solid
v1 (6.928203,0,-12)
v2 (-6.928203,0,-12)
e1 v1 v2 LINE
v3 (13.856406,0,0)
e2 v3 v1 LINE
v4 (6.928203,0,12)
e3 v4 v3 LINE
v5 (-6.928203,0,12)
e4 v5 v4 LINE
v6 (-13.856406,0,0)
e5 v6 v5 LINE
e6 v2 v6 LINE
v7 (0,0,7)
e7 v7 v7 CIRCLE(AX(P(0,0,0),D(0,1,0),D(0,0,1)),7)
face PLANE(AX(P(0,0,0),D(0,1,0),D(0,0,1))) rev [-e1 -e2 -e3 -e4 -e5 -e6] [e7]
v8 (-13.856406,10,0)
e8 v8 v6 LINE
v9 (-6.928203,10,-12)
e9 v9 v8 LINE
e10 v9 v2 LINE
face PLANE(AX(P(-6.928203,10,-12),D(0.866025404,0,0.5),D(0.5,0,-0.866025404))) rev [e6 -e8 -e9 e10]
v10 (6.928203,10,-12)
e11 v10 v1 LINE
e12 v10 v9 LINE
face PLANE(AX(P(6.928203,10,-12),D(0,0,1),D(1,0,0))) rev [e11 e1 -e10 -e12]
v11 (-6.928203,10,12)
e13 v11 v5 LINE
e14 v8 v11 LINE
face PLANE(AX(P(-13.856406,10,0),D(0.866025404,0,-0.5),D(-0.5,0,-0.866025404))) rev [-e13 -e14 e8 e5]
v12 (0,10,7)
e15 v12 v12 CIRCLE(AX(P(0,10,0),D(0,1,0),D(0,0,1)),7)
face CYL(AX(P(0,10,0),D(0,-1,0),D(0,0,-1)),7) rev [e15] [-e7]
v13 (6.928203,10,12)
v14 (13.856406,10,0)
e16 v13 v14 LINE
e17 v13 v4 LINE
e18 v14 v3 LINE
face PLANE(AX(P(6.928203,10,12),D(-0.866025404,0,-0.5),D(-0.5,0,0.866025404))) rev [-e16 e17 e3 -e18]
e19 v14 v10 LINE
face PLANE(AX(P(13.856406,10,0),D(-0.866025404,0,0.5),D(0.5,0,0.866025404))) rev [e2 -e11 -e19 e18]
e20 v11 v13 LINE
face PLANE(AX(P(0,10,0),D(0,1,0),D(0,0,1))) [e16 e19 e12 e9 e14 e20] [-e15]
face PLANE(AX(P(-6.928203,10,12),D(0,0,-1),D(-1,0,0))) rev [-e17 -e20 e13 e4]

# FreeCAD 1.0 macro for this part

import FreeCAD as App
import Part
import Sketcher
from FreeCAD import Vector
Q = App.Units.Quantity

doc = App.newDocument("Part")
body = doc.addObject("PartDesign::Body", "Body")

sketch1 = body.newObject("Sketcher::SketchObject", "Sketch")
sketch1.AttachmentSupport = (doc.getObject("XZ_Plane"), [""])
sketch1.MapMode = "FlatFace"
sketch1.addGeometry(Part.LineSegment(Vector(7, -12, 0), Vector(-7, -12, 0)), False)
sketch1.addGeometry(Part.LineSegment(Vector(-7, -12, 0), Vector(-14, 0, 0)), False)
sketch1.addGeometry(Part.LineSegment(Vector(-14, 0, 0), Vector(-7, 12, 0)), False)
sketch1.addGeometry(Part.LineSegment(Vector(-7, 12, 0), Vector(7, 12, 0)), False)
sketch1.addGeometry(Part.LineSegment(Vector(7, 12, 0), Vector(14, 0, 0)), False)
sketch1.addGeometry(Part.LineSegment(Vector(14, 0, 0), Vector(7, -12, 0)), False)
sketch1.addGeometry(Part.Circle(Vector(0, 0, 0), Vector(0, 0, 1), 7), False)
sketch1.addConstraint(Sketcher.Constraint("Coincident", 0, 2, 1, 1))
sketch1.addConstraint(Sketcher.Constraint("Coincident", 1, 2, 2, 1))
sketch1.addConstraint(Sketcher.Constraint("Coincident", 2, 2, 3, 1))
sketch1.addConstraint(Sketcher.Constraint("Coincident", 3, 2, 4, 1))
sketch1.addConstraint(Sketcher.Constraint("Coincident", 4, 2, 5, 1))
sketch1.addConstraint(Sketcher.Constraint("Coincident", 5, 2, 0, 1))
sketch1.addConstraint(Sketcher.Constraint("Horizontal", 0))
sketch1.addConstraint(Sketcher.Constraint("Horizontal", 3))
sketch1.addConstraint(Sketcher.Constraint("Coincident", 6, 3, -1, 1))
sketch1.addConstraint(Sketcher.Constraint("Symmetric", 0, 2, 3, 2, -1, 1))
sketch1.addConstraint(Sketcher.Constraint("Symmetric", 1, 2, 4, 2, -1, 1))
sketch1.addConstraint(Sketcher.Constraint("PointOnObject", 1, 2, -1))
sketch1.addConstraint(Sketcher.Constraint("Parallel", 2, 5))
sketch1.addConstraint(Sketcher.Constraint("Vertical", 0, 2, 2, 2))
sketch1.addConstraint(Sketcher.Constraint("Diameter", 6, 14.0))
sketch1.addConstraint(Sketcher.Constraint("Angle", 1, Q("120 deg")))
sketch1.addConstraint(Sketcher.Constraint("DistanceY", 0, 2, -1, 1, 12.0))
sketch1.addConstraint(Sketcher.Constraint("DistanceX", 0, 2, 0, 1, 13.856406))
pad1 = body.newObject("PartDesign::Pad", "Pad")
pad1.Profile = sketch1
pad1.Length = 10
pad1.Reversed = True

doc.recompute()
